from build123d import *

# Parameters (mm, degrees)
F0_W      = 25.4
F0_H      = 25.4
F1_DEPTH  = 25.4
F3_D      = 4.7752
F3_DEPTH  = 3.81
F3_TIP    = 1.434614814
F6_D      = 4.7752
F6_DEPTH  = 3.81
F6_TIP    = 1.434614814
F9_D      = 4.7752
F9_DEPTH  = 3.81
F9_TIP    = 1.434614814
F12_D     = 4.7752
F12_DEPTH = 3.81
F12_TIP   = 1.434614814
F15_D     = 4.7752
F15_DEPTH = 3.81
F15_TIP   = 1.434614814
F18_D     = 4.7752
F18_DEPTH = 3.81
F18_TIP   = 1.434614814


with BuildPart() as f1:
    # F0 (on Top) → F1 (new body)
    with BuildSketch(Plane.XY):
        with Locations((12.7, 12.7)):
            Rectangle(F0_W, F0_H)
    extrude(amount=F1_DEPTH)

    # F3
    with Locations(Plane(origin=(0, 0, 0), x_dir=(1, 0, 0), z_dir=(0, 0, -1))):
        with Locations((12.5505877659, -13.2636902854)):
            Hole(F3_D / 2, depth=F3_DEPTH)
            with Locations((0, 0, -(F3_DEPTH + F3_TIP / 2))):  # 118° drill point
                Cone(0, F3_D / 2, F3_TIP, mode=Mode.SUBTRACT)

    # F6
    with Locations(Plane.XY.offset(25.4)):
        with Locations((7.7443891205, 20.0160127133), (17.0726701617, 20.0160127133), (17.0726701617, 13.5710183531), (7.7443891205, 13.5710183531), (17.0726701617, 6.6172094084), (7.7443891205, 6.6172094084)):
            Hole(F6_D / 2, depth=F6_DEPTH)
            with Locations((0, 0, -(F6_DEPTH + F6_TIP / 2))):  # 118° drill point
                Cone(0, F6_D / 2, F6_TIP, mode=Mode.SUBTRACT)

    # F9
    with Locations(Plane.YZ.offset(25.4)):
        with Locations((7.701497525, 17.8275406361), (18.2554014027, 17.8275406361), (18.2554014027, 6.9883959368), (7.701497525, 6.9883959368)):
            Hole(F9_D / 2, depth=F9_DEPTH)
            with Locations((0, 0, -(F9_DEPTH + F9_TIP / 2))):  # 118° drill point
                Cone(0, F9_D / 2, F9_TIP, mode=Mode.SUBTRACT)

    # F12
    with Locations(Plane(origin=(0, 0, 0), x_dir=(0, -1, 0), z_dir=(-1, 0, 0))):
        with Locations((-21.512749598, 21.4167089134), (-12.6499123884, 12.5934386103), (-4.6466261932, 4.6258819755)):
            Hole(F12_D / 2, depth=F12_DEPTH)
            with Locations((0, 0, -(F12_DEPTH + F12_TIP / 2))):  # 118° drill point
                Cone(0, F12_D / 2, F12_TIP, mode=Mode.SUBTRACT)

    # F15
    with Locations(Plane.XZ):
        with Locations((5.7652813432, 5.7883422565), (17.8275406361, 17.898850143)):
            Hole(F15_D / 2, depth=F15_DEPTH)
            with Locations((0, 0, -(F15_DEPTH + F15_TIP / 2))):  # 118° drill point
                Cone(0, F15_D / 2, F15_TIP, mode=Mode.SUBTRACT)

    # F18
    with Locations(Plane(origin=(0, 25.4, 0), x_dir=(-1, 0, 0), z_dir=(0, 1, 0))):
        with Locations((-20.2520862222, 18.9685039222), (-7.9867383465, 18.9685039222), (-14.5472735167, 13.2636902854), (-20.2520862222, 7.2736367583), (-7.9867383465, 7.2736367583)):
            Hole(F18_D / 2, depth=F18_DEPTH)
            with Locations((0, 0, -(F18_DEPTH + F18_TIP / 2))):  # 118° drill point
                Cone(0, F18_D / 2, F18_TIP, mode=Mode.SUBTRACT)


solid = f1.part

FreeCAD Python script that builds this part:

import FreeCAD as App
import Part
import Sketcher
from FreeCAD import Vector
Q = App.Units.Quantity

doc = App.newDocument("Part")
body = doc.addObject("PartDesign::Body", "Body")

sketch1 = body.newObject("Sketcher::SketchObject", "Sketch")
sketch1.AttachmentSupport = (doc.getObject("XY_Plane"), [""])
sketch1.MapMode = "FlatFace"
sketch1.addGeometry(Part.LineSegment(Vector(0, 25, 0), Vector(0, 0, 0)), False)
sketch1.addGeometry(Part.LineSegment(Vector(0, 0, 0), Vector(25, 0, 0)), False)
sketch1.addGeometry(Part.LineSegment(Vector(25, 0, 0), Vector(25, 25, 0)), False)
sketch1.addGeometry(Part.LineSegment(Vector(25, 25, 0), Vector(0, 25, 0)), False)
sketch1.addConstraint(Sketcher.Constraint("Coincident", 0, 2, 1, 1))
sketch1.addConstraint(Sketcher.Constraint("Coincident", 1, 2, 2, 1))
sketch1.addConstraint(Sketcher.Constraint("Coincident", 2, 2, 3, 1))
sketch1.addConstraint(Sketcher.Constraint("Coincident", 3, 2, 0, 1))
sketch1.addConstraint(Sketcher.Constraint("Vertical", 0))
sketch1.addConstraint(Sketcher.Constraint("Horizontal", 1))
sketch1.addConstraint(Sketcher.Constraint("Vertical", 2))
sketch1.addConstraint(Sketcher.Constraint("Horizontal", 3))
sketch1.addConstraint(Sketcher.Constraint("Coincident", 0, 2, -1, 1))
sketch1.addConstraint(Sketcher.Constraint("Equal", 3, 0))
sketch1.addConstraint(Sketcher.Constraint("DistanceX", 1, 1, 1, 2, Q("1 in")))
pad1 = body.newObject("PartDesign::Pad", "Pad")
pad1.Profile = sketch1
pad1.Length = Q("1 in")

sketch2 = body.newObject("Sketcher::SketchObject", "Sketch001")
sketch2.AttachmentSupport = (doc.getObject("XY_Plane"), [""])
sketch2.MapMode = "FlatFace"
sketch2.addGeometry(Part.Circle(Vector(12.6, 13.3, 0), Vector(0, 0, 1), 2.4), False)
sketch2.addConstraint(Sketcher.Constraint("Diameter", 0, Q("0.188 in")))
sketch2.addConstraint(Sketcher.Constraint("DistanceY", -1, 1, 0, 3, Q("13.26369 mm")))
sketch2.addConstraint(Sketcher.Constraint("DistanceX", -1, 1, 0, 3, Q("12.550588 mm")))
doc.recompute()
hole = body.newObject("PartDesign::Hole", "Hole")
hole.Profile = sketch2
hole.ThreadType = "None"
hole.Diameter = Q("0.188 in")
hole.DepthType = "Dimension"
hole.Depth = Q("0.15 in")
hole.DrillPoint = "Angled"
hole.DrillPointAngle = 118
hole.Reversed = True

sketch3 = body.newObject("Sketcher::SketchObject", "Sketch002")
sketch3.AttachmentSupport = (doc.getObject("XY_Plane"), [""])
sketch3.MapMode = "FlatFace"
sketch3.AttachmentOffset = App.Placement(Vector(0, 0, 1 * 25.4), App.Rotation())
sketch3.addGeometry(Part.Circle(Vector(7.7, 20, 0), Vector(0, 0, 1), 2.4), False)
sketch3.addGeometry(Part.Circle(Vector(17.1, 20, 0), Vector(0, 0, 1), 2.4), False)
sketch3.addGeometry(Part.Circle(Vector(17.1, 13.6, 0), Vector(0, 0, 1), 2.4), False)
sketch3.addGeometry(Part.Circle(Vector(7.7, 13.6, 0), Vector(0, 0, 1), 2.4), False)
sketch3.addGeometry(Part.Circle(Vector(17.1, 6.6, 0), Vector(0, 0, 1), 2.4), False)
sketch3.addGeometry(Part.Circle(Vector(7.7, 6.6, 0), Vector(0, 0, 1), 2.4), False)
sketch3.addConstraint(Sketcher.Constraint("Equal", 0, 1))
sketch3.addConstraint(Sketcher.Constraint("Equal", 1, 2))
sketch3.addConstraint(Sketcher.Constraint("Equal", 2, 3))
sketch3.addConstraint(Sketcher.Constraint("Equal", 3, 4))
sketch3.addConstraint(Sketcher.Constraint("Equal", 4, 5))
sketch3.addConstraint(Sketcher.Constraint("Horizontal", 0, 3, 1, 3))
sketch3.addConstraint(Sketcher.Constraint("Horizontal", 2, 3, 3, 3))
sketch3.addConstraint(Sketcher.Constraint("Horizontal", 4, 3, 5, 3))
sketch3.addConstraint(Sketcher.Constraint("Vertical", 1, 3, 2, 3))
sketch3.addConstraint(Sketcher.Constraint("Vertical", 0, 3, 3, 3))
sketch3.addConstraint(Sketcher.Constraint("Vertical", 2, 3, 4, 3))
sketch3.addConstraint(Sketcher.Constraint("Vertical", 3, 3, 5, 3))
sketch3.addConstraint(Sketcher.Constraint("Diameter", 0, Q("0.188 in")))
sketch3.addConstraint(Sketcher.Constraint("DistanceX", -1, 1, 0, 3, Q("7.744389 mm")))
sketch3.addConstraint(Sketcher.Constraint("DistanceX", -1, 1, 1, 3, Q("17.07267 mm")))
sketch3.addConstraint(Sketcher.Constraint("DistanceY", -1, 1, 2, 3, Q("13.571018 mm")))
sketch3.addConstraint(Sketcher.Constraint("DistanceY", -1, 1, 4, 3, Q("6.617209 mm")))
sketch3.addConstraint(Sketcher.Constraint("DistanceY", -1, 1, 0, 3, Q("20.016013 mm")))
doc.recompute()
hole2 = body.newObject("PartDesign::Hole", "Hole001")
hole2.Profile = sketch3
hole2.ThreadType = "None"
hole2.Diameter = Q("0.188 in")
hole2.DepthType = "Dimension"
hole2.Depth = Q("0.15 in")
hole2.DrillPoint = "Angled"
hole2.DrillPointAngle = 118

sketch4 = body.newObject("Sketcher::SketchObject", "Sketch003")
sketch4.AttachmentSupport = (doc.getObject("YZ_Plane"), [""])
sketch4.MapMode = "FlatFace"
sketch4.AttachmentOffset = App.Placement(Vector(0, 0, 1 * 25.4), App.Rotation())
sketch4.addGeometry(Part.Circle(Vector(7.7, 17.8, 0), Vector(0, 0, 1), 2.4), False)
sketch4.addGeometry(Part.Circle(Vector(18.3, 17.8, 0), Vector(0, 0, 1), 2.4), False)
sketch4.addGeometry(Part.Circle(Vector(18.3, 7, 0), Vector(0, 0, 1), 2.4), False)
sketch4.addGeometry(Part.Circle(Vector(7.7, 7, 0), Vector(0, 0, 1), 2.4), False)
sketch4.addConstraint(Sketcher.Constraint("Equal", 0, 1))
sketch4.addConstraint(Sketcher.Constraint("Equal", 1, 2))
sketch4.addConstraint(Sketcher.Constraint("Equal", 2, 3))
sketch4.addConstraint(Sketcher.Constraint("Horizontal", 0, 3, 1, 3))
sketch4.addConstraint(Sketcher.Constraint("Horizontal", 2, 3, 3, 3))
sketch4.addConstraint(Sketcher.Constraint("Vertical", 1, 3, 2, 3))
sketch4.addConstraint(Sketcher.Constraint("Vertical", 0, 3, 3, 3))
sketch4.addConstraint(Sketcher.Constraint("Diameter", 0, Q("0.188 in")))
sketch4.addConstraint(Sketcher.Constraint("DistanceX", -1, 1, 1, 3, Q("18.255401 mm")))
sketch4.addConstraint(Sketcher.Constraint("DistanceY", -1, 1, 0, 3, Q("17.827541 mm")))
sketch4.addConstraint(Sketcher.Constraint("DistanceX", -1, 1, 0, 3, Q("7.701498 mm")))
sketch4.addConstraint(Sketcher.Constraint("DistanceY", -1, 1, 2, 3, Q("6.988396 mm")))
doc.recompute()
hole3 = body.newObject("PartDesign::Hole", "Hole002")
hole3.Profile = sketch4
hole3.ThreadType = "None"
hole3.Diameter = Q("0.188 in")
hole3.DepthType = "Dimension"
hole3.Depth = Q("0.15 in")
hole3.DrillPoint = "Angled"
hole3.DrillPointAngle = 118

sketch5 = body.newObject("Sketcher::SketchObject", "Sketch004")
sketch5.AttachmentSupport = (doc.getObject("YZ_Plane"), [""])
sketch5.MapMode = "FlatFace"
sketch5.addGeometry(Part.Circle(Vector(21.5, 21.4, 0), Vector(0, 0, 1), 2.4), False)
sketch5.addGeometry(Part.Circle(Vector(12.6, 12.6, 0), Vector(0, 0, 1), 2.4), False)
sketch5.addGeometry(Part.Circle(Vector(4.6, 4.6, 0), Vector(0, 0, 1), 2.4), False)
sketch5.addConstraint(Sketcher.Constraint("Equal", 0, 1))
sketch5.addConstraint(Sketcher.Constraint("Equal", 1, 2))
sketch5.addConstraint(Sketcher.Constraint("Diameter", 0, Q("0.188 in")))
sketch5.addConstraint(Sketcher.Constraint("DistanceX", -1, 1, 0, 3, Q("21.51275 mm")))
sketch5.addConstraint(Sketcher.Constraint("DistanceY", -1, 1, 0, 3, Q("21.416709 mm")))
sketch5.addConstraint(Sketcher.Constraint("DistanceY", -1, 1, 1, 3, Q("12.593439 mm")))
sketch5.addConstraint(Sketcher.Constraint("DistanceY", -1, 1, 2, 3, Q("4.625882 mm")))
sketch5.addConstraint(Sketcher.Constraint("DistanceX", -1, 1, 1, 3, Q("12.649912 mm")))
sketch5.addConstraint(Sketcher.Constraint("DistanceX", -1, 1, 2, 3, Q("4.646626 mm")))
doc.recompute()
hole4 = body.newObject("PartDesign::Hole", "Hole003")
hole4.Profile = sketch5
hole4.ThreadType = "None"
hole4.Diameter = Q("0.188 in")
hole4.DepthType = "Dimension"
hole4.Depth = Q("0.15 in")
hole4.DrillPoint = "Angled"
hole4.DrillPointAngle = 118
hole4.Reversed = True

sketch6 = body.newObject("Sketcher::SketchObject", "Sketch005")
sketch6.AttachmentSupport = (doc.getObject("XZ_Plane"), [""])
sketch6.MapMode = "FlatFace"
sketch6.addGeometry(Part.Circle(Vector(5.8, 5.8, 0), Vector(0, 0, 1), 2.4), False)
sketch6.addGeometry(Part.Circle(Vector(17.8, 17.9, 0), Vector(0, 0, 1), 2.4), False)
sketch6.addConstraint(Sketcher.Constraint("Equal", 0, 1))
sketch6.addConstraint(Sketcher.Constraint("Diameter", 0, Q("0.188 in")))
sketch6.addConstraint(Sketcher.Constraint("DistanceX", -1, 1, 0, 3, Q("5.765281 mm")))
sketch6.addConstraint(Sketcher.Constraint("DistanceX", -1, 1, 1, 3, Q("17.827541 mm")))
sketch6.addConstraint(Sketcher.Constraint("DistanceY", -1, 1, 1, 3, Q("17.89885 mm")))
sketch6.addConstraint(Sketcher.Constraint("DistanceY", -1, 1, 0, 3, Q("5.788342 mm")))
doc.recompute()
hole5 = body.newObject("PartDesign::Hole", "Hole004")
hole5.Profile = sketch6
hole5.ThreadType = "None"
hole5.Diameter = Q("0.188 in")
hole5.DepthType = "Dimension"
hole5.Depth = Q("0.15 in")
hole5.DrillPoint = "Angled"
hole5.DrillPointAngle = 118

sketch7 = body.newObject("Sketcher::SketchObject", "Sketch006")
sketch7.AttachmentSupport = (doc.getObject("XZ_Plane"), [""])
sketch7.MapMode = "FlatFace"
sketch7.AttachmentOffset = App.Placement(Vector(0, 0, -1 * 25.4), App.Rotation())
sketch7.addGeometry(Part.Circle(Vector(20.3, 19, 0), Vector(0, 0, 1), 2.4), False)
sketch7.addGeometry(Part.Circle(Vector(8, 19, 0), Vector(0, 0, 1), 2.4), False)
sketch7.addGeometry(Part.Circle(Vector(14.5, 13.3, 0), Vector(0, 0, 1), 2.4), False)
sketch7.addGeometry(Part.Circle(Vector(20.3, 7.3, 0), Vector(0, 0, 1), 2.4), False)
sketch7.addGeometry(Part.Circle(Vector(8, 7.3, 0), Vector(0, 0, 1), 2.4), False)
sketch7.addConstraint(Sketcher.Constraint("Equal", 0, 1))
sketch7.addConstraint(Sketcher.Constraint("Equal", 1, 2))
sketch7.addConstraint(Sketcher.Constraint("Equal", 2, 3))
sketch7.addConstraint(Sketcher.Constraint("Equal", 3, 4))
sketch7.addConstraint(Sketcher.Constraint("Horizontal", 0, 3, 1, 3))
sketch7.addConstraint(Sketcher.Constraint("Horizontal", 3, 3, 4, 3))
sketch7.addConstraint(Sketcher.Constraint("Vertical", 0, 3, 3, 3))
sketch7.addConstraint(Sketcher.Constraint("Vertical", 1, 3, 4, 3))
sketch7.addConstraint(Sketcher.Constraint("Diameter", 0, Q("0.188 in")))
sketch7.addConstraint(Sketcher.Constraint("DistanceX", -1, 1, 1, 3, Q("7.986738 mm")))
sketch7.addConstraint(Sketcher.Constraint("DistanceY", -1, 1, 2, 3, Q("13.26369 mm")))
sketch7.addConstraint(Sketcher.Constraint("DistanceX", -1, 1, 0, 3, Q("20.252086 mm")))
sketch7.addConstraint(Sketcher.Constraint("DistanceY", -1, 1, 0, 3, Q("18.968504 mm")))
sketch7.addConstraint(Sketcher.Constraint("DistanceX", -1, 1, 2, 3, Q("14.547274 mm")))
sketch7.addConstraint(Sketcher.Constraint("DistanceY", -1, 1, 3, 3, Q("7.273637 mm")))
doc.recompute()
hole6 = body.newObject("PartDesign::Hole", "Hole005")
hole6.Profile = sketch7
hole6.ThreadType = "None"
hole6.Diameter = Q("0.188 in")
hole6.DepthType = "Dimension"
hole6.Depth = Q("0.15 in")
hole6.DrillPoint = "Angled"
hole6.DrillPointAngle = 118
hole6.Reversed = True

doc.recompute()
